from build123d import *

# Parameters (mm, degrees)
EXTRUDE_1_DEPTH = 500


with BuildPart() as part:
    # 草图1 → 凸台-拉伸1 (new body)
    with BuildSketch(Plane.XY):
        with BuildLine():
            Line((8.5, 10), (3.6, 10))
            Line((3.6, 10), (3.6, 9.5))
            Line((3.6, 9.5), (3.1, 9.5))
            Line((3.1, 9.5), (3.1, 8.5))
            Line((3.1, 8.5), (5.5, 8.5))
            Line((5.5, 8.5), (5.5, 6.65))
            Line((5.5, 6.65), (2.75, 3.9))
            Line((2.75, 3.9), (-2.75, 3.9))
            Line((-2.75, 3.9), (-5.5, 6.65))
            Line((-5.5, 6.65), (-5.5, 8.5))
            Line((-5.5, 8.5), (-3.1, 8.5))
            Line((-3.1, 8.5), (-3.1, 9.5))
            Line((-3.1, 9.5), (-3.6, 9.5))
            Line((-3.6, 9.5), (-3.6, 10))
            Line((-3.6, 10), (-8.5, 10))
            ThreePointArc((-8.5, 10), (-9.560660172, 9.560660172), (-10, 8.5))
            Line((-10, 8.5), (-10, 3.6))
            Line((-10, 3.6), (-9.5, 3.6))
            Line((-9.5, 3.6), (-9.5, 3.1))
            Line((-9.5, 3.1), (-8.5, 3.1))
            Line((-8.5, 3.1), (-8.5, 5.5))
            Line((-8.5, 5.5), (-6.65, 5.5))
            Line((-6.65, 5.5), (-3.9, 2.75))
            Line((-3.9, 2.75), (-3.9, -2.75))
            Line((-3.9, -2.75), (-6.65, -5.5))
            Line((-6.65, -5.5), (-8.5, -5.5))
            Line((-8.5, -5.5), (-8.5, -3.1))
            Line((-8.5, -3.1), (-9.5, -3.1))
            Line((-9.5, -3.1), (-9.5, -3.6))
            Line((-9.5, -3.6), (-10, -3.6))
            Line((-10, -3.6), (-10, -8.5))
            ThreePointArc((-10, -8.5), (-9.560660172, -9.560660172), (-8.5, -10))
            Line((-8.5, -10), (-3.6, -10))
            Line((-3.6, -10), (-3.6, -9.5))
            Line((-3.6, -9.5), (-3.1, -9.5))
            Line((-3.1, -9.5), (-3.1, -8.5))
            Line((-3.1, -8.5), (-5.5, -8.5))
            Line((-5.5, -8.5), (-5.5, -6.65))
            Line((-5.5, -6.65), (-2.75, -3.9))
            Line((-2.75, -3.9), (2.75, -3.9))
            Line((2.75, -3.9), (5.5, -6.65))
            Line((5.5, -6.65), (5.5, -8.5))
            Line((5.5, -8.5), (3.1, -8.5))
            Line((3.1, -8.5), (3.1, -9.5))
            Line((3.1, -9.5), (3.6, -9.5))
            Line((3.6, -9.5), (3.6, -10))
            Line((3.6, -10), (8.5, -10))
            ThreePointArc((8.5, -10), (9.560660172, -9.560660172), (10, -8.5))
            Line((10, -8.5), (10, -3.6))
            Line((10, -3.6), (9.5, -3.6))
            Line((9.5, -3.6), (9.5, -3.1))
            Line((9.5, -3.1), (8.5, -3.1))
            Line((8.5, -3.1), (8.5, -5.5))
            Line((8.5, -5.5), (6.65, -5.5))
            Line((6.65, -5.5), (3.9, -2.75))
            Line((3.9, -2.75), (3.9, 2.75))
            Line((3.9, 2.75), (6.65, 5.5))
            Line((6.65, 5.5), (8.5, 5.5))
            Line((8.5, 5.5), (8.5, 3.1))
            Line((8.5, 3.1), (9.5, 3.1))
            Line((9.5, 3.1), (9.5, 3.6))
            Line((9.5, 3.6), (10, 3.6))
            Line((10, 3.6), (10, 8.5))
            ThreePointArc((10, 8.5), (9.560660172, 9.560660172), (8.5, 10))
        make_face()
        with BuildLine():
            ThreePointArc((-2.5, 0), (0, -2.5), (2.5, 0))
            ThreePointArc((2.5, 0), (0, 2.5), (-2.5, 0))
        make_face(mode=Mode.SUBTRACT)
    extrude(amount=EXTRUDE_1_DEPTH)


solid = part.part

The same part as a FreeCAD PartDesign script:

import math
import FreeCAD as App
import Part
import Sketcher
Q = App.Units.Quantity

doc = App.newDocument("Part")
params = doc.addObject("Spreadsheet::Sheet", "Params")
for row, (alias, value) in enumerate([
    ("sketch1_diameter", "5 mm"),
    ("sketch1_radius", "1.5 mm"),
    ("sketch1_width", "1 mm"),
    ("sketch1_width2", "4.9 mm"),
    ("sketch1_width3", "2.4 mm"),
    ("pad1_length", "500 mm"),
], start=1):
    params.set(f"A{row}", alias)
    params.set(f"B{row}", "=" + value)
    params.setAlias(f"B{row}", alias)

body = doc.addObject("PartDesign::Body", "Body")

# Sketch on XY plane
sketch1 = body.newObject("Sketcher::SketchObject", "Sketch")
sketch1.AttachmentSupport = (doc.getObject("XY_Plane"), [""])
sketch1.MapMode = "FlatFace"
sketch1.addGeometry([
    Part.LineSegment(App.Vector(8.5, 10, 0), App.Vector(3.6, 10, 0)),  # 0
    Part.LineSegment(App.Vector(3.6, 10, 0), App.Vector(3.6, 9.5, 0)),  # 1
    Part.LineSegment(App.Vector(3.6, 9.5, 0), App.Vector(3.1, 9.5, 0)),  # 2
    Part.LineSegment(App.Vector(3.1, 9.5, 0), App.Vector(3.1, 8.5, 0)),  # 3
    Part.LineSegment(App.Vector(3.1, 8.5, 0), App.Vector(5.5, 8.5, 0)),  # 4
    Part.LineSegment(App.Vector(5.5, 8.5, 0), App.Vector(5.5, 6.7, 0)),  # 5
    Part.LineSegment(App.Vector(5.5, 6.7, 0), App.Vector(2.8, 3.9, 0)),  # 6
    Part.LineSegment(App.Vector(2.8, 3.9, 0), App.Vector(-2.8, 3.9, 0)),  # 7
    Part.LineSegment(App.Vector(-2.8, 3.9, 0), App.Vector(-5.5, 6.7, 0)),  # 8
    Part.LineSegment(App.Vector(-5.5, 6.7, 0), App.Vector(-5.5, 8.5, 0)),  # 9
    Part.LineSegment(App.Vector(-5.5, 8.5, 0), App.Vector(-3.1, 8.5, 0)),  # 10
    Part.LineSegment(App.Vector(-3.1, 8.5, 0), App.Vector(-3.1, 9.5, 0)),  # 11
    Part.LineSegment(App.Vector(-3.1, 9.5, 0), App.Vector(-3.6, 9.5, 0)),  # 12
    Part.LineSegment(App.Vector(-3.6, 9.5, 0), App.Vector(-3.6, 10, 0)),  # 13
    Part.LineSegment(App.Vector(-3.6, 10, 0), App.Vector(-8.5, 10, 0)),  # 14
    Part.ArcOfCircle(Part.Circle(App.Vector(-8.5, 8.5, 0), App.Vector(0, 0, 1), 1.5), math.radians(90), math.radians(180)),  # 15
    Part.LineSegment(App.Vector(-10, 8.5, 0), App.Vector(-10, 3.6, 0)),  # 16
    Part.LineSegment(App.Vector(-10, 3.6, 0), App.Vector(-9.5, 3.6, 0)),  # 17
    Part.LineSegment(App.Vector(-9.5, 3.6, 0), App.Vector(-9.5, 3.1, 0)),  # 18
    Part.LineSegment(App.Vector(-9.5, 3.1, 0), App.Vector(-8.5, 3.1, 0)),  # 19
    Part.LineSegment(App.Vector(-8.5, 3.1, 0), App.Vector(-8.5, 5.5, 0)),  # 20
    Part.LineSegment(App.Vector(-8.5, 5.5, 0), App.Vector(-6.7, 5.5, 0)),  # 21
    Part.LineSegment(App.Vector(-6.7, 5.5, 0), App.Vector(-3.9, 2.8, 0)),  # 22
    Part.LineSegment(App.Vector(-3.9, 2.8, 0), App.Vector(-3.9, -2.8, 0)),  # 23
    Part.LineSegment(App.Vector(-3.9, -2.8, 0), App.Vector(-6.7, -5.5, 0)),  # 24
    Part.LineSegment(App.Vector(-6.7, -5.5, 0), App.Vector(-8.5, -5.5, 0)),  # 25
    Part.LineSegment(App.Vector(-8.5, -5.5, 0), App.Vector(-8.5, -3.1, 0)),  # 26
    Part.LineSegment(App.Vector(-8.5, -3.1, 0), App.Vector(-9.5, -3.1, 0)),  # 27
    Part.LineSegment(App.Vector(-9.5, -3.1, 0), App.Vector(-9.5, -3.6, 0)),  # 28
    Part.LineSegment(App.Vector(-9.5, -3.6, 0), App.Vector(-10, -3.6, 0)),  # 29
    Part.LineSegment(App.Vector(-10, -3.6, 0), App.Vector(-10, -8.5, 0)),  # 30
    Part.ArcOfCircle(Part.Circle(App.Vector(-8.5, -8.5, 0), App.Vector(0, 0, 1), 1.5), math.radians(180), math.radians(270)),  # 31
    Part.LineSegment(App.Vector(-8.5, -10, 0), App.Vector(-3.6, -10, 0)),  # 32
    Part.LineSegment(App.Vector(-3.6, -10, 0), App.Vector(-3.6, -9.5, 0)),  # 33
    Part.LineSegment(App.Vector(-3.6, -9.5, 0), App.Vector(-3.1, -9.5, 0)),  # 34
    Part.LineSegment(App.Vector(-3.1, -9.5, 0), App.Vector(-3.1, -8.5, 0)),  # 35
    Part.LineSegment(App.Vector(-3.1, -8.5, 0), App.Vector(-5.5, -8.5, 0)),  # 36
    Part.LineSegment(App.Vector(-5.5, -8.5, 0), App.Vector(-5.5, -6.7, 0)),  # 37
    Part.LineSegment(App.Vector(-5.5, -6.7, 0), App.Vector(-2.8, -3.9, 0)),  # 38
    Part.LineSegment(App.Vector(-2.8, -3.9, 0), App.Vector(2.8, -3.9, 0)),  # 39
    Part.LineSegment(App.Vector(2.8, -3.9, 0), App.Vector(5.5, -6.7, 0)),  # 40
    Part.LineSegment(App.Vector(5.5, -6.7, 0), App.Vector(5.5, -8.5, 0)),  # 41
    Part.LineSegment(App.Vector(5.5, -8.5, 0), App.Vector(3.1, -8.5, 0)),  # 42
    Part.LineSegment(App.Vector(3.1, -8.5, 0), App.Vector(3.1, -9.5, 0)),  # 43
    Part.LineSegment(App.Vector(3.1, -9.5, 0), App.Vector(3.6, -9.5, 0)),  # 44
    Part.LineSegment(App.Vector(3.6, -9.5, 0), App.Vector(3.6, -10, 0)),  # 45
    Part.LineSegment(App.Vector(3.6, -10, 0), App.Vector(8.5, -10, 0)),  # 46
    Part.ArcOfCircle(Part.Circle(App.Vector(8.5, -8.5, 0), App.Vector(0, 0, 1), 1.5), math.radians(-90), math.radians(0)),  # 47
    Part.LineSegment(App.Vector(10, -8.5, 0), App.Vector(10, -3.6, 0)),  # 48
    Part.LineSegment(App.Vector(10, -3.6, 0), App.Vector(9.5, -3.6, 0)),  # 49
    Part.LineSegment(App.Vector(9.5, -3.6, 0), App.Vector(9.5, -3.1, 0)),  # 50
    Part.LineSegment(App.Vector(9.5, -3.1, 0), App.Vector(8.5, -3.1, 0)),  # 51
    Part.LineSegment(App.Vector(8.5, -3.1, 0), App.Vector(8.5, -5.5, 0)),  # 52
    Part.LineSegment(App.Vector(8.5, -5.5, 0), App.Vector(6.7, -5.5, 0)),  # 53
    Part.LineSegment(App.Vector(6.7, -5.5, 0), App.Vector(3.9, -2.8, 0)),  # 54
    Part.LineSegment(App.Vector(3.9, -2.8, 0), App.Vector(3.9, 2.8, 0)),  # 55
    Part.LineSegment(App.Vector(3.9, 2.8, 0), App.Vector(6.7, 5.5, 0)),  # 56
    Part.LineSegment(App.Vector(6.7, 5.5, 0), App.Vector(8.5, 5.5, 0)),  # 57
    Part.LineSegment(App.Vector(8.5, 5.5, 0), App.Vector(8.5, 3.1, 0)),  # 58
    Part.LineSegment(App.Vector(8.5, 3.1, 0), App.Vector(9.5, 3.1, 0)),  # 59
    Part.LineSegment(App.Vector(9.5, 3.1, 0), App.Vector(9.5, 3.6, 0)),  # 60
    Part.LineSegment(App.Vector(9.5, 3.6, 0), App.Vector(10, 3.6, 0)),  # 61
    Part.LineSegment(App.Vector(10, 3.6, 0), App.Vector(10, 8.5, 0)),  # 62
    Part.ArcOfCircle(Part.Circle(App.Vector(8.5, 8.5, 0), App.Vector(0, 0, 1), 1.5), math.radians(0), math.radians(90)),  # 63
    Part.Circle(App.Vector(0, 0, 0), App.Vector(0, 0, 1), 2.5),  # 64
], False)
sketch1.addConstraint([
    Sketcher.Constraint("Coincident", 0, 2, 1, 1),
    Sketcher.Constraint("Coincident", 1, 2, 2, 1),
    Sketcher.Constraint("Coincident", 2, 2, 3, 1),
    Sketcher.Constraint("Coincident", 3, 2, 4, 1),
    Sketcher.Constraint("Coincident", 4, 2, 5, 1),
    Sketcher.Constraint("Coincident", 5, 2, 6, 1),
    Sketcher.Constraint("Coincident", 6, 2, 7, 1),
    Sketcher.Constraint("Coincident", 7, 2, 8, 1),
    Sketcher.Constraint("Coincident", 8, 2, 9, 1),
    Sketcher.Constraint("Coincident", 9, 2, 10, 1),
    Sketcher.Constraint("Coincident", 10, 2, 11, 1),
    Sketcher.Constraint("Coincident", 11, 2, 12, 1),
    Sketcher.Constraint("Coincident", 12, 2, 13, 1),
    Sketcher.Constraint("Coincident", 13, 2, 14, 1),
    Sketcher.Constraint("Tangent", 14, 2, 15, 1),
    Sketcher.Constraint("Tangent", 15, 2, 16, 1),
    Sketcher.Constraint("Coincident", 16, 2, 17, 1),
    Sketcher.Constraint("Coincident", 17, 2, 18, 1),
    Sketcher.Constraint("Coincident", 18, 2, 19, 1),
    Sketcher.Constraint("Coincident", 19, 2, 20, 1),
    Sketcher.Constraint("Coincident", 20, 2, 21, 1),
    Sketcher.Constraint("Coincident", 21, 2, 22, 1),
    Sketcher.Constraint("Coincident", 22, 2, 23, 1),
    Sketcher.Constraint("Coincident", 23, 2, 24, 1),
    Sketcher.Constraint("Coincident", 24, 2, 25, 1),
    Sketcher.Constraint("Coincident", 25, 2, 26, 1),
    Sketcher.Constraint("Coincident", 26, 2, 27, 1),
    Sketcher.Constraint("Coincident", 27, 2, 28, 1),
    Sketcher.Constraint("Coincident", 28, 2, 29, 1),
    Sketcher.Constraint("Coincident", 29, 2, 30, 1),
    Sketcher.Constraint("Tangent", 30, 2, 31, 1),
    Sketcher.Constraint("Tangent", 31, 2, 32, 1),
    Sketcher.Constraint("Coincident", 32, 2, 33, 1),
    Sketcher.Constraint("Coincident", 33, 2, 34, 1),
    Sketcher.Constraint("Coincident", 34, 2, 35, 1),
    Sketcher.Constraint("Coincident", 35, 2, 36, 1),
    Sketcher.Constraint("Coincident", 36, 2, 37, 1),
    Sketcher.Constraint("Coincident", 37, 2, 38, 1),
    Sketcher.Constraint("Coincident", 38, 2, 39, 1),
    Sketcher.Constraint("Coincident", 39, 2, 40, 1),
    Sketcher.Constraint("Coincident", 40, 2, 41, 1),
    Sketcher.Constraint("Coincident", 41, 2, 42, 1),
    Sketcher.Constraint("Coincident", 42, 2, 43, 1),
    Sketcher.Constraint("Coincident", 43, 2, 44, 1),
    Sketcher.Constraint("Coincident", 44, 2, 45, 1),
    Sketcher.Constraint("Coincident", 45, 2, 46, 1),
    Sketcher.Constraint("Tangent", 46, 2, 47, 1),
    Sketcher.Constraint("Tangent", 47, 2, 48, 1),
    Sketcher.Constraint("Coincident", 48, 2, 49, 1),
    Sketcher.Constraint("Coincident", 49, 2, 50, 1),
    Sketcher.Constraint("Coincident", 50, 2, 51, 1),
    Sketcher.Constraint("Coincident", 51, 2, 52, 1),
    Sketcher.Constraint("Coincident", 52, 2, 53, 1),
    Sketcher.Constraint("Coincident", 53, 2, 54, 1),
    Sketcher.Constraint("Coincident", 54, 2, 55, 1),
    Sketcher.Constraint("Coincident", 55, 2, 56, 1),
    Sketcher.Constraint("Coincident", 56, 2, 57, 1),
    Sketcher.Constraint("Coincident", 57, 2, 58, 1),
    Sketcher.Constraint("Coincident", 58, 2, 59, 1),
    Sketcher.Constraint("Coincident", 59, 2, 60, 1),
    Sketcher.Constraint("Coincident", 60, 2, 61, 1),
    Sketcher.Constraint("Coincident", 61, 2, 62, 1),
    Sketcher.Constraint("Tangent", 62, 2, 63, 1),
    Sketcher.Constraint("Tangent", 63, 2, 0, 1),
    Sketcher.Constraint("Horizontal", 0),
    Sketcher.Constraint("Vertical", 1),
    Sketcher.Constraint("Horizontal", 2),
    Sketcher.Constraint("Vertical", 3),
    Sketcher.Constraint("Horizontal", 4),
    Sketcher.Constraint("Vertical", 5),
    Sketcher.Constraint("Horizontal", 7),
    Sketcher.Constraint("Vertical", 9),
    Sketcher.Constraint("Horizontal", 10),
    Sketcher.Constraint("Vertical", 11),
    Sketcher.Constraint("Horizontal", 12),
    Sketcher.Constraint("Vertical", 13),
    Sketcher.Constraint("Horizontal", 14),
    Sketcher.Constraint("Vertical", 16),
    Sketcher.Constraint("Horizontal", 17),
    Sketcher.Constraint("Vertical", 18),
    Sketcher.Constraint("Horizontal", 19),
    Sketcher.Constraint("Vertical", 20),
    Sketcher.Constraint("Horizontal", 21),
    Sketcher.Constraint("Vertical", 23),
    Sketcher.Constraint("Horizontal", 25),
    Sketcher.Constraint("Vertical", 26),
    Sketcher.Constraint("Horizontal", 27),
    Sketcher.Constraint("Vertical", 28),
    Sketcher.Constraint("Horizontal", 29),
    Sketcher.Constraint("Vertical", 30),
    Sketcher.Constraint("Horizontal", 32),
    Sketcher.Constraint("Vertical", 33),
    Sketcher.Constraint("Horizontal", 34),
    Sketcher.Constraint("Vertical", 35),
    Sketcher.Constraint("Horizontal", 36),
    Sketcher.Constraint("Vertical", 37),
    Sketcher.Constraint("Horizontal", 39),
    Sketcher.Constraint("Vertical", 41),
    Sketcher.Constraint("Horizontal", 42),
    Sketcher.Constraint("Vertical", 43),
    Sketcher.Constraint("Horizontal", 44),
    Sketcher.Constraint("Vertical", 45),
    Sketcher.Constraint("Horizontal", 46),
    Sketcher.Constraint("Vertical", 48),
    Sketcher.Constraint("Horizontal", 49),
    Sketcher.Constraint("Vertical", 50),
    Sketcher.Constraint("Horizontal", 51),
    Sketcher.Constraint("Vertical", 52),
    Sketcher.Constraint("Horizontal", 53),
    Sketcher.Constraint("Vertical", 55),
    Sketcher.Constraint("Horizontal", 57),
    Sketcher.Constraint("Vertical", 58),
    Sketcher.Constraint("Horizontal", 59),
    Sketcher.Constraint("Vertical", 60),
    Sketcher.Constraint("Horizontal", 61),
    Sketcher.Constraint("Vertical", 62),
    Sketcher.Constraint("Coincident", 64, 3, -1, 1),
    Sketcher.Constraint("Equal", 15, 31),
    Sketcher.Constraint("Equal", 31, 47),
    Sketcher.Constraint("Equal", 47, 63),
    Sketcher.Constraint("Symmetric", 15, 3, 47, 3, -1, 1),
    Sketcher.Constraint("Symmetric", 31, 3, 63, 3, -1, 1),
    Sketcher.Constraint("Symmetric", 1, 2, 33, 2, -1, 1),
    Sketcher.Constraint("Symmetric", 3, 2, 35, 2, -1, 1),
    Sketcher.Constraint("Symmetric", 5, 2, 37, 2, -1, 1),
    Sketcher.Constraint("Symmetric", 6, 2, 38, 2, -1, 1),
    Sketcher.Constraint("Symmetric", 8, 2, 40, 2, -1, 1),
    Sketcher.Constraint("Symmetric", 10, 2, 42, 2, -1, 1),
    Sketcher.Constraint("Symmetric", 12, 2, 44, 2, -1, 1),
    Sketcher.Constraint("Symmetric", 17, 2, 49, 2, -1, 1),
    Sketcher.Constraint("Symmetric", 19, 2, 51, 2, -1, 1),
    Sketcher.Constraint("Symmetric", 21, 2, 53, 2, -1, 1),
    Sketcher.Constraint("Symmetric", 22, 2, 54, 2, -1, 1),
    Sketcher.Constraint("Symmetric", 24, 2, 56, 2, -1, 1),
    Sketcher.Constraint("Symmetric", 26, 2, 58, 2, -1, 1),
    Sketcher.Constraint("Symmetric", 28, 2, 60, 2, -1, 1),
    Sketcher.Constraint("Symmetric", 31, 3, 47, 3, -2),
    Sketcher.Constraint("Symmetric", 5, 2, 8, 2, -2),
    Sketcher.Constraint("Symmetric", 3, 2, 10, 2, -2),
    Sketcher.Constraint("Symmetric", 1, 2, 12, 2, -2),
    Sketcher.Constraint("Symmetric", 28, 2, 49, 2, -2),
    Sketcher.Constraint("Symmetric", 26, 2, 51, 2, -2),
    Sketcher.Constraint("Symmetric", 24, 2, 53, 2, -2),
    Sketcher.Constraint("Perpendicular", 6, 8),
    Sketcher.Constraint("Parallel", 8, 22),
    Sketcher.Constraint("Perpendicular", 22, 24),
    Sketcher.Constraint("Perpendicular", 38, 40),
    Sketcher.Constraint("Perpendicular", 54, 56),
    Sketcher.Constraint("Horizontal", 63, 3, 3, 2),
    Sketcher.Constraint("Horizontal", 23, 2, 54, 2),
    Sketcher.Constraint("Vertical", 14, 2, 19, 2),
    Sketcher.Constraint("Equal", 12, 17),
    Sketcher.Constraint("Equal", 61, 1),
    Sketcher.Constraint("Equal", 57, 5),
    Sketcher.Constraint("Equal", 46, 16),
    Sketcher.Constraint("Equal", 13, 18),
    Sketcher.Constraint("Equal", 42, 20),
    Sketcher.Constraint("Equal", 39, 23),
    Sketcher.Constraint("Equal", 8, 22),
    Sketcher.Constraint("Diameter", 64, Q("5 mm")),
    Sketcher.Constraint("Radius", 15, Q("1.5 mm")),
    Sketcher.Constraint("DistanceX", 19, 1, 19, 2, Q("1 mm")),
    Sketcher.Constraint("DistanceX", 0, 2, 0, 1, Q("4.9 mm")),
    Sketcher.Constraint("DistanceX", 4, 1, 4, 2, Q("2.4 mm")),
    Sketcher.Constraint("DistanceX", 7, 2, 7, 1, Q("5.5 mm")),
    Sketcher.Constraint("DistanceY", -1, 1, 0, 2, Q("10 mm")),
    Sketcher.Constraint("DistanceX", 21, 1, 21, 2, Q("1.85 mm")),
])
sketch1.setExpression("Constraints[159]", "Params.sketch1_diameter")
sketch1.setExpression("Constraints[160]", "Params.sketch1_radius")
sketch1.setExpression("Constraints[161]", "Params.sketch1_width")
sketch1.setExpression("Constraints[162]", "Params.sketch1_width2")
sketch1.setExpression("Constraints[163]", "Params.sketch1_width3")
pad1 = body.newObject("PartDesign::Pad", "Pad")
pad1.Profile = sketch1
pad1.setExpression("Length", "Params.pad1_length")

doc.recompute()
